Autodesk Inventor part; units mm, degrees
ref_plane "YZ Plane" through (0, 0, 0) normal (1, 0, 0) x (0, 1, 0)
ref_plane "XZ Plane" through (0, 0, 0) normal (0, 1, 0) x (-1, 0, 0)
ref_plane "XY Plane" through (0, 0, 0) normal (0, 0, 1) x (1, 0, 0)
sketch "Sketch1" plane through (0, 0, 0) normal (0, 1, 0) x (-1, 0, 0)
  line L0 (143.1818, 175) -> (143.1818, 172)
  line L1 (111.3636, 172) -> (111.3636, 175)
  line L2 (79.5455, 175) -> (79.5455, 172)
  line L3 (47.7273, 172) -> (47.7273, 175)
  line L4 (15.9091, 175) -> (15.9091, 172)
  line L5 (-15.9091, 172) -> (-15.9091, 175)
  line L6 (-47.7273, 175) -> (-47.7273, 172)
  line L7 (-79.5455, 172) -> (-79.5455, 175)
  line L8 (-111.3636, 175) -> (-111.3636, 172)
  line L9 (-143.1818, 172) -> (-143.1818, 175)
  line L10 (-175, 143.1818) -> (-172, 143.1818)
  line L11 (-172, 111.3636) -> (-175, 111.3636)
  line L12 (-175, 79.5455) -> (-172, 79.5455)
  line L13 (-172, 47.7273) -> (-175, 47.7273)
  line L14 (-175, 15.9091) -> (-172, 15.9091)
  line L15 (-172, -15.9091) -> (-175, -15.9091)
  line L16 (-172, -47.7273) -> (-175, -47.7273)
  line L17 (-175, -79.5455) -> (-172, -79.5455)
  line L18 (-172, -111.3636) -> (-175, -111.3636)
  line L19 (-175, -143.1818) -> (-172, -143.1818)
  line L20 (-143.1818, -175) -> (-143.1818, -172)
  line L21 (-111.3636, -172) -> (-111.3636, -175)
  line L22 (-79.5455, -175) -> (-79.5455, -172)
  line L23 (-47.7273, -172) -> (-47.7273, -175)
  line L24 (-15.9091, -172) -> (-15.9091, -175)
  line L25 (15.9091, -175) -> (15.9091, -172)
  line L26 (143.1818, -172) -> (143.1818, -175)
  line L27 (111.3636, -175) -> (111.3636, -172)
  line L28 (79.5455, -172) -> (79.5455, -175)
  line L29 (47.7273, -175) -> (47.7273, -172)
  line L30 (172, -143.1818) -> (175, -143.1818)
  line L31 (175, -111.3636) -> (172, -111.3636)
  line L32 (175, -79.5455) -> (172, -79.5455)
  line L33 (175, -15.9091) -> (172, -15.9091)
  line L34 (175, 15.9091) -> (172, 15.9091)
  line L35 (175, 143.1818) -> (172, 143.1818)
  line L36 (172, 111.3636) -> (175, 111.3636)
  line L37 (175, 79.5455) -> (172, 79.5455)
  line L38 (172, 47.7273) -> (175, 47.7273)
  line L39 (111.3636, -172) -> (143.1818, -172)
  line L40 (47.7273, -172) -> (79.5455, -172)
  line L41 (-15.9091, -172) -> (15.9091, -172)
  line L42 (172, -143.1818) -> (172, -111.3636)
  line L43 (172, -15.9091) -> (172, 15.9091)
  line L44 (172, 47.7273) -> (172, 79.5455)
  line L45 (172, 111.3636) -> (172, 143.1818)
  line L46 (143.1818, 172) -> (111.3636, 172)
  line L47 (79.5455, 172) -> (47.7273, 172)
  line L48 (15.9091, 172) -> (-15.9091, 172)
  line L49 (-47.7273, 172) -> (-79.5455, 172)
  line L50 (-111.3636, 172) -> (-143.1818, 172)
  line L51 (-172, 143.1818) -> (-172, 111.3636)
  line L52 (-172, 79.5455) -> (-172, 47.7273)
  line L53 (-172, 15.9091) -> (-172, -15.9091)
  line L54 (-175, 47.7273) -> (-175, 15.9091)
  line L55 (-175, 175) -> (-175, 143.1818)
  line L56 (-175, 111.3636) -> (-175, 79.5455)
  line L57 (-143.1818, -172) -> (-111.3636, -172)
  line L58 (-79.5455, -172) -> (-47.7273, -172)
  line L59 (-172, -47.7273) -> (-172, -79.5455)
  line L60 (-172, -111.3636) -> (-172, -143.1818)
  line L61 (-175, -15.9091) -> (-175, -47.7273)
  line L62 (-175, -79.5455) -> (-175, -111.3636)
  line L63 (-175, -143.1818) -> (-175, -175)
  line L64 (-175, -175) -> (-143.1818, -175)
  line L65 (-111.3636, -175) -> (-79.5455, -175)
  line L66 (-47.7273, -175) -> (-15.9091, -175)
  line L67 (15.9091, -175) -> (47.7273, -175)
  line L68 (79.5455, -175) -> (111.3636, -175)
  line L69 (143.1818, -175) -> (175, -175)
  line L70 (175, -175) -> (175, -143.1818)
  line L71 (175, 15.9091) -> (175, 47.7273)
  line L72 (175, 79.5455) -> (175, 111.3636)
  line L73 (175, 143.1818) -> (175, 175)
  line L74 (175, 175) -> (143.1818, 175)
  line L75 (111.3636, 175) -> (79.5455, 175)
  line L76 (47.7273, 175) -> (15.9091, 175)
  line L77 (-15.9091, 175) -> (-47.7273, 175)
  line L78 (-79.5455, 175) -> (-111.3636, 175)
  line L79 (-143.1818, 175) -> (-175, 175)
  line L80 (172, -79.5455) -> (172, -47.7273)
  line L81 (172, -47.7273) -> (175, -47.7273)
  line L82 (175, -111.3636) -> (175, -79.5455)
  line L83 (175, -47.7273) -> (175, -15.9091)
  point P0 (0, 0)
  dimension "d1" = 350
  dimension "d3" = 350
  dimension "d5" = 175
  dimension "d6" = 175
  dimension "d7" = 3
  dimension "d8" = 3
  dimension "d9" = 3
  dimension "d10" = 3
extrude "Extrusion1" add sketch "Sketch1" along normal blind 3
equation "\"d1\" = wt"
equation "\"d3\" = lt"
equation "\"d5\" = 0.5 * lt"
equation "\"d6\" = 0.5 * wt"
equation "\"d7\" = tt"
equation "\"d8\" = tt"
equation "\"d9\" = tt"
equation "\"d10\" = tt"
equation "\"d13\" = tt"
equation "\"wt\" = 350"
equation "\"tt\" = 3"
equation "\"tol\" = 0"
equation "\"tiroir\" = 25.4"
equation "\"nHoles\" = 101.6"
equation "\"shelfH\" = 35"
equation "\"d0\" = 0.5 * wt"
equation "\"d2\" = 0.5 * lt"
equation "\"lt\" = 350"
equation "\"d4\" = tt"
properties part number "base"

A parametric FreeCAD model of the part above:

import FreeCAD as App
import Part
import Sketcher

V = App.Vector

doc = App.newDocument("Part")
body = doc.addObject("PartDesign::Body", "Body")

# Sketch on XZ plane
sketch1 = body.newObject("Sketcher::SketchObject", "Sketch")
sketch1.AttachmentSupport = (doc.getObject("XZ_Plane"), [""])
sketch1.MapMode = "FlatFace"
sketch1.addGeometry([
    Part.LineSegment(V(-175, 175, 0), V(-143.1818, 175, 0)),  # 0
    Part.LineSegment(V(-143.1818, 175, 0), V(-143.1818, 172, 0)),  # 1
    Part.LineSegment(V(-143.1818, 172, 0), V(-111.3636, 172, 0)),  # 2
    Part.LineSegment(V(-111.3636, 172, 0), V(-111.3636, 175, 0)),  # 3
    Part.LineSegment(V(-111.3636, 175, 0), V(-79.5455, 175, 0)),  # 4
    Part.LineSegment(V(-79.5455, 175, 0), V(-79.5455, 172, 0)),  # 5
    Part.LineSegment(V(-79.5455, 172, 0), V(-47.7273, 172, 0)),  # 6
    Part.LineSegment(V(-47.7273, 172, 0), V(-47.7273, 175, 0)),  # 7
    Part.LineSegment(V(-47.7273, 175, 0), V(-15.9091, 175, 0)),  # 8
    Part.LineSegment(V(-15.9091, 175, 0), V(-15.9091, 172, 0)),  # 9
    Part.LineSegment(V(-15.9091, 172, 0), V(15.9091, 172, 0)),  # 10
    Part.LineSegment(V(15.9091, 172, 0), V(15.9091, 175, 0)),  # 11
    Part.LineSegment(V(15.9091, 175, 0), V(47.7273, 175, 0)),  # 12
    Part.LineSegment(V(47.7273, 175, 0), V(47.7273, 172, 0)),  # 13
    Part.LineSegment(V(47.7273, 172, 0), V(79.5455, 172, 0)),  # 14
    Part.LineSegment(V(79.5455, 172, 0), V(79.5455, 175, 0)),  # 15
    Part.LineSegment(V(79.5455, 175, 0), V(111.3636, 175, 0)),  # 16
    Part.LineSegment(V(111.3636, 175, 0), V(111.3636, 172, 0)),  # 17
    Part.LineSegment(V(111.3636, 172, 0), V(143.1818, 172, 0)),  # 18
    Part.LineSegment(V(143.1818, 172, 0), V(143.1818, 175, 0)),  # 19
    Part.LineSegment(V(143.1818, 175, 0), V(175, 175, 0)),  # 20
    Part.LineSegment(V(175, 175, 0), V(175, 143.1818, 0)),  # 21
    Part.LineSegment(V(175, 143.1818, 0), V(172, 143.1818, 0)),  # 22
    Part.LineSegment(V(172, 143.1818, 0), V(172, 111.3636, 0)),  # 23
    Part.LineSegment(V(172, 111.3636, 0), V(175, 111.3636, 0)),  # 24
    Part.LineSegment(V(175, 111.3636, 0), V(175, 79.5455, 0)),  # 25
    Part.LineSegment(V(175, 79.5455, 0), V(172, 79.5455, 0)),  # 26
    Part.LineSegment(V(172, 79.5455, 0), V(172, 47.7273, 0)),  # 27
    Part.LineSegment(V(172, 47.7273, 0), V(175, 47.7273, 0)),  # 28
    Part.LineSegment(V(175, 47.7273, 0), V(175, 15.9091, 0)),  # 29
    Part.LineSegment(V(175, 15.9091, 0), V(172, 15.9091, 0)),  # 30
    Part.LineSegment(V(172, 15.9091, 0), V(172, -15.9091, 0)),  # 31
    Part.LineSegment(V(172, -15.9091, 0), V(175, -15.9091, 0)),  # 32
    Part.LineSegment(V(175, -15.9091, 0), V(175, -47.7273, 0)),  # 33
    Part.LineSegment(V(175, -47.7273, 0), V(172, -47.7273, 0)),  # 34
    Part.LineSegment(V(172, -47.7273, 0), V(172, -79.5455, 0)),  # 35
    Part.LineSegment(V(172, -79.5455, 0), V(175, -79.5455, 0)),  # 36
    Part.LineSegment(V(175, -79.5455, 0), V(175, -111.3636, 0)),  # 37
    Part.LineSegment(V(175, -111.3636, 0), V(172, -111.3636, 0)),  # 38
    Part.LineSegment(V(172, -111.3636, 0), V(172, -143.1818, 0)),  # 39
    Part.LineSegment(V(172, -143.1818, 0), V(175, -143.1818, 0)),  # 40
    Part.LineSegment(V(175, -143.1818, 0), V(175, -175, 0)),  # 41
    Part.LineSegment(V(175, -175, 0), V(143.1818, -175, 0)),  # 42
    Part.LineSegment(V(143.1818, -175, 0), V(143.1818, -172, 0)),  # 43
    Part.LineSegment(V(143.1818, -172, 0), V(111.3636, -172, 0)),  # 44
    Part.LineSegment(V(111.3636, -172, 0), V(111.3636, -175, 0)),  # 45
    Part.LineSegment(V(111.3636, -175, 0), V(79.5455, -175, 0)),  # 46
    Part.LineSegment(V(79.5455, -175, 0), V(79.5455, -172, 0)),  # 47
    Part.LineSegment(V(79.5455, -172, 0), V(47.7273, -172, 0)),  # 48
    Part.LineSegment(V(47.7273, -172, 0), V(47.7273, -175, 0)),  # 49
    Part.LineSegment(V(47.7273, -175, 0), V(15.9091, -175, 0)),  # 50
    Part.LineSegment(V(15.9091, -175, 0), V(15.9091, -172, 0)),  # 51
    Part.LineSegment(V(15.9091, -172, 0), V(-15.9091, -172, 0)),  # 52
    Part.LineSegment(V(-15.9091, -172, 0), V(-15.9091, -175, 0)),  # 53
    Part.LineSegment(V(-15.9091, -175, 0), V(-47.7273, -175, 0)),  # 54
    Part.LineSegment(V(-47.7273, -175, 0), V(-47.7273, -172, 0)),  # 55
    Part.LineSegment(V(-47.7273, -172, 0), V(-79.5455, -172, 0)),  # 56
    Part.LineSegment(V(-79.5455, -172, 0), V(-79.5455, -175, 0)),  # 57
    Part.LineSegment(V(-79.5455, -175, 0), V(-111.3636, -175, 0)),  # 58
    Part.LineSegment(V(-111.3636, -175, 0), V(-111.3636, -172, 0)),  # 59
    Part.LineSegment(V(-111.3636, -172, 0), V(-143.1818, -172, 0)),  # 60
    Part.LineSegment(V(-143.1818, -172, 0), V(-143.1818, -175, 0)),  # 61
    Part.LineSegment(V(-143.1818, -175, 0), V(-175, -175, 0)),  # 62
    Part.LineSegment(V(-175, -175, 0), V(-175, -143.1818, 0)),  # 63
    Part.LineSegment(V(-175, -143.1818, 0), V(-172, -143.1818, 0)),  # 64
    Part.LineSegment(V(-172, -143.1818, 0), V(-172, -111.3636, 0)),  # 65
    Part.LineSegment(V(-172, -111.3636, 0), V(-175, -111.3636, 0)),  # 66
    Part.LineSegment(V(-175, -111.3636, 0), V(-175, -79.5455, 0)),  # 67
    Part.LineSegment(V(-175, -79.5455, 0), V(-172, -79.5455, 0)),  # 68
    Part.LineSegment(V(-172, -79.5455, 0), V(-172, -47.7273, 0)),  # 69
    Part.LineSegment(V(-172, -47.7273, 0), V(-175, -47.7273, 0)),  # 70
    Part.LineSegment(V(-175, -47.7273, 0), V(-175, -15.9091, 0)),  # 71
    Part.LineSegment(V(-175, -15.9091, 0), V(-172, -15.9091, 0)),  # 72
    Part.LineSegment(V(-172, -15.9091, 0), V(-172, 15.9091, 0)),  # 73
    Part.LineSegment(V(-172, 15.9091, 0), V(-175, 15.9091, 0)),  # 74
    Part.LineSegment(V(-175, 15.9091, 0), V(-175, 47.7273, 0)),  # 75
    Part.LineSegment(V(-175, 47.7273, 0), V(-172, 47.7273, 0)),  # 76
    Part.LineSegment(V(-172, 47.7273, 0), V(-172, 79.5455, 0)),  # 77
    Part.LineSegment(V(-172, 79.5455, 0), V(-175, 79.5455, 0)),  # 78
    Part.LineSegment(V(-175, 79.5455, 0), V(-175, 111.3636, 0)),  # 79
    Part.LineSegment(V(-175, 111.3636, 0), V(-172, 111.3636, 0)),  # 80
    Part.LineSegment(V(-172, 111.3636, 0), V(-172, 143.1818, 0)),  # 81
    Part.LineSegment(V(-172, 143.1818, 0), V(-175, 143.1818, 0)),  # 82
    Part.LineSegment(V(-175, 143.1818, 0), V(-175, 175, 0)),  # 83
], False)
sketch1.addConstraint([
    Sketcher.Constraint("Coincident", 0, 2, 1, 1),
    Sketcher.Constraint("Coincident", 1, 2, 2, 1),
    Sketcher.Constraint("Coincident", 2, 2, 3, 1),
    Sketcher.Constraint("Coincident", 3, 2, 4, 1),
    Sketcher.Constraint("Coincident", 4, 2, 5, 1),
    Sketcher.Constraint("Coincident", 5, 2, 6, 1),
    Sketcher.Constraint("Coincident", 6, 2, 7, 1),
    Sketcher.Constraint("Coincident", 7, 2, 8, 1),
    Sketcher.Constraint("Coincident", 8, 2, 9, 1),
    Sketcher.Constraint("Coincident", 9, 2, 10, 1),
    Sketcher.Constraint("Coincident", 10, 2, 11, 1),
    Sketcher.Constraint("Coincident", 11, 2, 12, 1),
    Sketcher.Constraint("Coincident", 12, 2, 13, 1),
    Sketcher.Constraint("Coincident", 13, 2, 14, 1),
    Sketcher.Constraint("Coincident", 14, 2, 15, 1),
    Sketcher.Constraint("Coincident", 15, 2, 16, 1),
    Sketcher.Constraint("Coincident", 16, 2, 17, 1),
    Sketcher.Constraint("Coincident", 17, 2, 18, 1),
    Sketcher.Constraint("Coincident", 18, 2, 19, 1),
    Sketcher.Constraint("Coincident", 19, 2, 20, 1),
    Sketcher.Constraint("Coincident", 20, 2, 21, 1),
    Sketcher.Constraint("Coincident", 21, 2, 22, 1),
    Sketcher.Constraint("Coincident", 22, 2, 23, 1),
    Sketcher.Constraint("Coincident", 23, 2, 24, 1),
    Sketcher.Constraint("Coincident", 24, 2, 25, 1),
    Sketcher.Constraint("Coincident", 25, 2, 26, 1),
    Sketcher.Constraint("Coincident", 26, 2, 27, 1),
    Sketcher.Constraint("Coincident", 27, 2, 28, 1),
    Sketcher.Constraint("Coincident", 28, 2, 29, 1),
    Sketcher.Constraint("Coincident", 29, 2, 30, 1),
    Sketcher.Constraint("Coincident", 30, 2, 31, 1),
    Sketcher.Constraint("Coincident", 31, 2, 32, 1),
    Sketcher.Constraint("Coincident", 32, 2, 33, 1),
    Sketcher.Constraint("Coincident", 33, 2, 34, 1),
    Sketcher.Constraint("Coincident", 34, 2, 35, 1),
    Sketcher.Constraint("Coincident", 35, 2, 36, 1),
    Sketcher.Constraint("Coincident", 36, 2, 37, 1),
    Sketcher.Constraint("Coincident", 37, 2, 38, 1),
    Sketcher.Constraint("Coincident", 38, 2, 39, 1),
    Sketcher.Constraint("Coincident", 39, 2, 40, 1),
    Sketcher.Constraint("Coincident", 40, 2, 41, 1),
    Sketcher.Constraint("Coincident", 41, 2, 42, 1),
    Sketcher.Constraint("Coincident", 42, 2, 43, 1),
    Sketcher.Constraint("Coincident", 43, 2, 44, 1),
    Sketcher.Constraint("Coincident", 44, 2, 45, 1),
    Sketcher.Constraint("Coincident", 45, 2, 46, 1),
    Sketcher.Constraint("Coincident", 46, 2, 47, 1),
    Sketcher.Constraint("Coincident", 47, 2, 48, 1),
    Sketcher.Constraint("Coincident", 48, 2, 49, 1),
    Sketcher.Constraint("Coincident", 49, 2, 50, 1),
    Sketcher.Constraint("Coincident", 50, 2, 51, 1),
    Sketcher.Constraint("Coincident", 51, 2, 52, 1),
    Sketcher.Constraint("Coincident", 52, 2, 53, 1),
    Sketcher.Constraint("Coincident", 53, 2, 54, 1),
    Sketcher.Constraint("Coincident", 54, 2, 55, 1),
    Sketcher.Constraint("Coincident", 55, 2, 56, 1),
    Sketcher.Constraint("Coincident", 56, 2, 57, 1),
    Sketcher.Constraint("Coincident", 57, 2, 58, 1),
    Sketcher.Constraint("Coincident", 58, 2, 59, 1),
    Sketcher.Constraint("Coincident", 59, 2, 60, 1),
    Sketcher.Constraint("Coincident", 60, 2, 61, 1),
    Sketcher.Constraint("Coincident", 61, 2, 62, 1),
    Sketcher.Constraint("Coincident", 62, 2, 63, 1),
    Sketcher.Constraint("Coincident", 63, 2, 64, 1),
    Sketcher.Constraint("Coincident", 64, 2, 65, 1),
    Sketcher.Constraint("Coincident", 65, 2, 66, 1),
    Sketcher.Constraint("Coincident", 66, 2, 67, 1),
    Sketcher.Constraint("Coincident", 67, 2, 68, 1),
    Sketcher.Constraint("Coincident", 68, 2, 69, 1),
    Sketcher.Constraint("Coincident", 69, 2, 70, 1),
    Sketcher.Constraint("Coincident", 70, 2, 71, 1),
    Sketcher.Constraint("Coincident", 71, 2, 72, 1),
    Sketcher.Constraint("Coincident", 72, 2, 73, 1),
    Sketcher.Constraint("Coincident", 73, 2, 74, 1),
    Sketcher.Constraint("Coincident", 74, 2, 75, 1),
    Sketcher.Constraint("Coincident", 75, 2, 76, 1),
    Sketcher.Constraint("Coincident", 76, 2, 77, 1),
    Sketcher.Constraint("Coincident", 77, 2, 78, 1),
    Sketcher.Constraint("Coincident", 78, 2, 79, 1),
    Sketcher.Constraint("Coincident", 79, 2, 80, 1),
    Sketcher.Constraint("Coincident", 80, 2, 81, 1),
    Sketcher.Constraint("Coincident", 81, 2, 82, 1),
    Sketcher.Constraint("Coincident", 82, 2, 83, 1),
    Sketcher.Constraint("Coincident", 83, 2, 0, 1),
    Sketcher.Constraint("Horizontal", 0),
    Sketcher.Constraint("Vertical", 1),
    Sketcher.Constraint("Horizontal", 2),
    Sketcher.Constraint("Vertical", 3),
    Sketcher.Constraint("Horizontal", 4),
    Sketcher.Constraint("Vertical", 5),
    Sketcher.Constraint("Horizontal", 6),
    Sketcher.Constraint("Vertical", 7),
    Sketcher.Constraint("Horizontal", 8),
    Sketcher.Constraint("Vertical", 9),
    Sketcher.Constraint("Horizontal", 10),
    Sketcher.Constraint("Vertical", 11),
    Sketcher.Constraint("Horizontal", 12),
    Sketcher.Constraint("Vertical", 13),
    Sketcher.Constraint("Horizontal", 14),
    Sketcher.Constraint("Vertical", 15),
    Sketcher.Constraint("Horizontal", 16),
    Sketcher.Constraint("Vertical", 17),
    Sketcher.Constraint("Horizontal", 18),
    Sketcher.Constraint("Vertical", 19),
    Sketcher.Constraint("Horizontal", 20),
    Sketcher.Constraint("Vertical", 21),
    Sketcher.Constraint("Horizontal", 22),
    Sketcher.Constraint("Vertical", 23),
    Sketcher.Constraint("Horizontal", 24),
    Sketcher.Constraint("Vertical", 25),
    Sketcher.Constraint("Horizontal", 26),
    Sketcher.Constraint("Vertical", 27),
    Sketcher.Constraint("Horizontal", 28),
    Sketcher.Constraint("Vertical", 29),
    Sketcher.Constraint("Horizontal", 30),
    Sketcher.Constraint("Vertical", 31),
    Sketcher.Constraint("Horizontal", 32),
    Sketcher.Constraint("Vertical", 33),
    Sketcher.Constraint("Horizontal", 34),
    Sketcher.Constraint("Vertical", 35),
    Sketcher.Constraint("Horizontal", 36),
    Sketcher.Constraint("Vertical", 37),
    Sketcher.Constraint("Horizontal", 38),
    Sketcher.Constraint("Vertical", 39),
    Sketcher.Constraint("Horizontal", 40),
    Sketcher.Constraint("Vertical", 41),
    Sketcher.Constraint("Horizontal", 42),
    Sketcher.Constraint("Vertical", 43),
    Sketcher.Constraint("Horizontal", 44),
    Sketcher.Constraint("Vertical", 45),
    Sketcher.Constraint("Horizontal", 46),
    Sketcher.Constraint("Vertical", 47),
    Sketcher.Constraint("Horizontal", 48),
    Sketcher.Constraint("Vertical", 49),
    Sketcher.Constraint("Horizontal", 50),
    Sketcher.Constraint("Vertical", 51),
    Sketcher.Constraint("Horizontal", 52),
    Sketcher.Constraint("Vertical", 53),
    Sketcher.Constraint("Horizontal", 54),
    Sketcher.Constraint("Vertical", 55),
    Sketcher.Constraint("Horizontal", 56),
    Sketcher.Constraint("Vertical", 57),
    Sketcher.Constraint("Horizontal", 58),
    Sketcher.Constraint("Vertical", 59),
    Sketcher.Constraint("Horizontal", 60),
    Sketcher.Constraint("Vertical", 61),
    Sketcher.Constraint("Horizontal", 62),
    Sketcher.Constraint("Vertical", 63),
    Sketcher.Constraint("Horizontal", 64),
    Sketcher.Constraint("Vertical", 65),
    Sketcher.Constraint("Horizontal", 66),
    Sketcher.Constraint("Vertical", 67),
    Sketcher.Constraint("Horizontal", 68),
    Sketcher.Constraint("Vertical", 69),
    Sketcher.Constraint("Horizontal", 70),
    Sketcher.Constraint("Vertical", 71),
    Sketcher.Constraint("Horizontal", 72),
    Sketcher.Constraint("Vertical", 73),
    Sketcher.Constraint("Horizontal", 74),
    Sketcher.Constraint("Vertical", 75),
    Sketcher.Constraint("Horizontal", 76),
    Sketcher.Constraint("Vertical", 77),
    Sketcher.Constraint("Horizontal", 78),
    Sketcher.Constraint("Vertical", 79),
    Sketcher.Constraint("Horizontal", 80),
    Sketcher.Constraint("Vertical", 81),
    Sketcher.Constraint("Horizontal", 82),
    Sketcher.Constraint("Vertical", 83),
    Sketcher.Constraint("Symmetric", 0, 2, 42, 2, -1, 1),
    Sketcher.Constraint("Symmetric", 2, 2, 44, 2, -1, 1),
    Sketcher.Constraint("Symmetric", 4, 2, 46, 2, -1, 1),
    Sketcher.Constraint("Symmetric", 6, 2, 48, 2, -1, 1),
    Sketcher.Constraint("Symmetric", 8, 2, 50, 2, -1, 1),
    Sketcher.Constraint("Symmetric", 10, 2, 52, 2, -1, 1),
    Sketcher.Constraint("Symmetric", 12, 2, 54, 2, -1, 1),
    Sketcher.Constraint("Symmetric", 14, 2, 56, 2, -1, 1),
    Sketcher.Constraint("Symmetric", 16, 2, 58, 2, -1, 1),
    Sketcher.Constraint("Symmetric", 18, 2, 60, 2, -1, 1),
    Sketcher.Constraint("Symmetric", 20, 2, 62, 2, -1, 1),
    Sketcher.Constraint("Symmetric", 22, 2, 64, 2, -1, 1),
    Sketcher.Constraint("Symmetric", 24, 2, 66, 2, -1, 1),
    Sketcher.Constraint("Symmetric", 26, 2, 68, 2, -1, 1),
    Sketcher.Constraint("Symmetric", 28, 2, 70, 2, -1, 1),
    Sketcher.Constraint("Symmetric", 30, 2, 72, 2, -1, 1),
    Sketcher.Constraint("Symmetric", 32, 2, 74, 2, -1, 1),
    Sketcher.Constraint("Symmetric", 34, 2, 76, 2, -1, 1),
    Sketcher.Constraint("Symmetric", 36, 2, 78, 2, -1, 1),
    Sketcher.Constraint("Symmetric", 38, 2, 80, 2, -1, 1),
    Sketcher.Constraint("Symmetric", 40, 2, 82, 2, -1, 1),
    Sketcher.Constraint("Symmetric", 8, 2, 11, 2, -2),
    Sketcher.Constraint("Symmetric", 6, 2, 13, 2, -2),
    Sketcher.Constraint("Symmetric", 4, 2, 15, 2, -2),
    Sketcher.Constraint("Symmetric", 2, 2, 17, 2, -2),
    Sketcher.Constraint("Symmetric", 0, 2, 19, 2, -2),
    Sketcher.Constraint("Symmetric", 40, 2, 63, 2, -2),
    Sketcher.Constraint("Symmetric", 38, 2, 65, 2, -2),
    Sketcher.Constraint("Symmetric", 36, 2, 67, 2, -2),
    Sketcher.Constraint("Symmetric", 34, 2, 69, 2, -2),
    Sketcher.Constraint("Symmetric", 32, 2, 71, 2, -2),
    Sketcher.Constraint("Horizontal", 0, 2, 3, 2),
    Sketcher.Constraint("Horizontal", 2, 2, 5, 2),
    Sketcher.Constraint("Horizontal", 4, 2, 7, 2),
    Sketcher.Constraint("Horizontal", 6, 2, 9, 2),
    Sketcher.Constraint("Vertical", 21, 2, 24, 2),
    Sketcher.Constraint("Vertical", 23, 2, 26, 2),
    Sketcher.Constraint("Vertical", 25, 2, 28, 2),
    Sketcher.Constraint("Vertical", 27, 2, 30, 2),
    Sketcher.Constraint("Equal", 0, 2),
    Sketcher.Constraint("Equal", 2, 4),
    Sketcher.Constraint("Equal", 4, 6),
    Sketcher.Constraint("Equal", 6, 8),
    Sketcher.Constraint("Equal", 8, 10),
    Sketcher.Constraint("Equal", 82, 1),
    Sketcher.Constraint("Equal", 62, 21),
    Sketcher.Constraint("Equal", 21, 23),
    Sketcher.Constraint("Equal", 23, 25),
    Sketcher.Constraint("Equal", 25, 27),
    Sketcher.Constraint("Equal", 27, 29),
    Sketcher.Constraint("Equal", 29, 31),
    Sketcher.Constraint("DistanceX", 22, 2, 22, 1, 3.0),
    Sketcher.Constraint("DistanceY", -1, 1, 0, 2, 175.0),
])
pad1 = body.newObject("PartDesign::Pad", "Pad")
pad1.Profile = sketch1
pad1.Length = 3
pad1.Reversed = True

doc.recompute()
